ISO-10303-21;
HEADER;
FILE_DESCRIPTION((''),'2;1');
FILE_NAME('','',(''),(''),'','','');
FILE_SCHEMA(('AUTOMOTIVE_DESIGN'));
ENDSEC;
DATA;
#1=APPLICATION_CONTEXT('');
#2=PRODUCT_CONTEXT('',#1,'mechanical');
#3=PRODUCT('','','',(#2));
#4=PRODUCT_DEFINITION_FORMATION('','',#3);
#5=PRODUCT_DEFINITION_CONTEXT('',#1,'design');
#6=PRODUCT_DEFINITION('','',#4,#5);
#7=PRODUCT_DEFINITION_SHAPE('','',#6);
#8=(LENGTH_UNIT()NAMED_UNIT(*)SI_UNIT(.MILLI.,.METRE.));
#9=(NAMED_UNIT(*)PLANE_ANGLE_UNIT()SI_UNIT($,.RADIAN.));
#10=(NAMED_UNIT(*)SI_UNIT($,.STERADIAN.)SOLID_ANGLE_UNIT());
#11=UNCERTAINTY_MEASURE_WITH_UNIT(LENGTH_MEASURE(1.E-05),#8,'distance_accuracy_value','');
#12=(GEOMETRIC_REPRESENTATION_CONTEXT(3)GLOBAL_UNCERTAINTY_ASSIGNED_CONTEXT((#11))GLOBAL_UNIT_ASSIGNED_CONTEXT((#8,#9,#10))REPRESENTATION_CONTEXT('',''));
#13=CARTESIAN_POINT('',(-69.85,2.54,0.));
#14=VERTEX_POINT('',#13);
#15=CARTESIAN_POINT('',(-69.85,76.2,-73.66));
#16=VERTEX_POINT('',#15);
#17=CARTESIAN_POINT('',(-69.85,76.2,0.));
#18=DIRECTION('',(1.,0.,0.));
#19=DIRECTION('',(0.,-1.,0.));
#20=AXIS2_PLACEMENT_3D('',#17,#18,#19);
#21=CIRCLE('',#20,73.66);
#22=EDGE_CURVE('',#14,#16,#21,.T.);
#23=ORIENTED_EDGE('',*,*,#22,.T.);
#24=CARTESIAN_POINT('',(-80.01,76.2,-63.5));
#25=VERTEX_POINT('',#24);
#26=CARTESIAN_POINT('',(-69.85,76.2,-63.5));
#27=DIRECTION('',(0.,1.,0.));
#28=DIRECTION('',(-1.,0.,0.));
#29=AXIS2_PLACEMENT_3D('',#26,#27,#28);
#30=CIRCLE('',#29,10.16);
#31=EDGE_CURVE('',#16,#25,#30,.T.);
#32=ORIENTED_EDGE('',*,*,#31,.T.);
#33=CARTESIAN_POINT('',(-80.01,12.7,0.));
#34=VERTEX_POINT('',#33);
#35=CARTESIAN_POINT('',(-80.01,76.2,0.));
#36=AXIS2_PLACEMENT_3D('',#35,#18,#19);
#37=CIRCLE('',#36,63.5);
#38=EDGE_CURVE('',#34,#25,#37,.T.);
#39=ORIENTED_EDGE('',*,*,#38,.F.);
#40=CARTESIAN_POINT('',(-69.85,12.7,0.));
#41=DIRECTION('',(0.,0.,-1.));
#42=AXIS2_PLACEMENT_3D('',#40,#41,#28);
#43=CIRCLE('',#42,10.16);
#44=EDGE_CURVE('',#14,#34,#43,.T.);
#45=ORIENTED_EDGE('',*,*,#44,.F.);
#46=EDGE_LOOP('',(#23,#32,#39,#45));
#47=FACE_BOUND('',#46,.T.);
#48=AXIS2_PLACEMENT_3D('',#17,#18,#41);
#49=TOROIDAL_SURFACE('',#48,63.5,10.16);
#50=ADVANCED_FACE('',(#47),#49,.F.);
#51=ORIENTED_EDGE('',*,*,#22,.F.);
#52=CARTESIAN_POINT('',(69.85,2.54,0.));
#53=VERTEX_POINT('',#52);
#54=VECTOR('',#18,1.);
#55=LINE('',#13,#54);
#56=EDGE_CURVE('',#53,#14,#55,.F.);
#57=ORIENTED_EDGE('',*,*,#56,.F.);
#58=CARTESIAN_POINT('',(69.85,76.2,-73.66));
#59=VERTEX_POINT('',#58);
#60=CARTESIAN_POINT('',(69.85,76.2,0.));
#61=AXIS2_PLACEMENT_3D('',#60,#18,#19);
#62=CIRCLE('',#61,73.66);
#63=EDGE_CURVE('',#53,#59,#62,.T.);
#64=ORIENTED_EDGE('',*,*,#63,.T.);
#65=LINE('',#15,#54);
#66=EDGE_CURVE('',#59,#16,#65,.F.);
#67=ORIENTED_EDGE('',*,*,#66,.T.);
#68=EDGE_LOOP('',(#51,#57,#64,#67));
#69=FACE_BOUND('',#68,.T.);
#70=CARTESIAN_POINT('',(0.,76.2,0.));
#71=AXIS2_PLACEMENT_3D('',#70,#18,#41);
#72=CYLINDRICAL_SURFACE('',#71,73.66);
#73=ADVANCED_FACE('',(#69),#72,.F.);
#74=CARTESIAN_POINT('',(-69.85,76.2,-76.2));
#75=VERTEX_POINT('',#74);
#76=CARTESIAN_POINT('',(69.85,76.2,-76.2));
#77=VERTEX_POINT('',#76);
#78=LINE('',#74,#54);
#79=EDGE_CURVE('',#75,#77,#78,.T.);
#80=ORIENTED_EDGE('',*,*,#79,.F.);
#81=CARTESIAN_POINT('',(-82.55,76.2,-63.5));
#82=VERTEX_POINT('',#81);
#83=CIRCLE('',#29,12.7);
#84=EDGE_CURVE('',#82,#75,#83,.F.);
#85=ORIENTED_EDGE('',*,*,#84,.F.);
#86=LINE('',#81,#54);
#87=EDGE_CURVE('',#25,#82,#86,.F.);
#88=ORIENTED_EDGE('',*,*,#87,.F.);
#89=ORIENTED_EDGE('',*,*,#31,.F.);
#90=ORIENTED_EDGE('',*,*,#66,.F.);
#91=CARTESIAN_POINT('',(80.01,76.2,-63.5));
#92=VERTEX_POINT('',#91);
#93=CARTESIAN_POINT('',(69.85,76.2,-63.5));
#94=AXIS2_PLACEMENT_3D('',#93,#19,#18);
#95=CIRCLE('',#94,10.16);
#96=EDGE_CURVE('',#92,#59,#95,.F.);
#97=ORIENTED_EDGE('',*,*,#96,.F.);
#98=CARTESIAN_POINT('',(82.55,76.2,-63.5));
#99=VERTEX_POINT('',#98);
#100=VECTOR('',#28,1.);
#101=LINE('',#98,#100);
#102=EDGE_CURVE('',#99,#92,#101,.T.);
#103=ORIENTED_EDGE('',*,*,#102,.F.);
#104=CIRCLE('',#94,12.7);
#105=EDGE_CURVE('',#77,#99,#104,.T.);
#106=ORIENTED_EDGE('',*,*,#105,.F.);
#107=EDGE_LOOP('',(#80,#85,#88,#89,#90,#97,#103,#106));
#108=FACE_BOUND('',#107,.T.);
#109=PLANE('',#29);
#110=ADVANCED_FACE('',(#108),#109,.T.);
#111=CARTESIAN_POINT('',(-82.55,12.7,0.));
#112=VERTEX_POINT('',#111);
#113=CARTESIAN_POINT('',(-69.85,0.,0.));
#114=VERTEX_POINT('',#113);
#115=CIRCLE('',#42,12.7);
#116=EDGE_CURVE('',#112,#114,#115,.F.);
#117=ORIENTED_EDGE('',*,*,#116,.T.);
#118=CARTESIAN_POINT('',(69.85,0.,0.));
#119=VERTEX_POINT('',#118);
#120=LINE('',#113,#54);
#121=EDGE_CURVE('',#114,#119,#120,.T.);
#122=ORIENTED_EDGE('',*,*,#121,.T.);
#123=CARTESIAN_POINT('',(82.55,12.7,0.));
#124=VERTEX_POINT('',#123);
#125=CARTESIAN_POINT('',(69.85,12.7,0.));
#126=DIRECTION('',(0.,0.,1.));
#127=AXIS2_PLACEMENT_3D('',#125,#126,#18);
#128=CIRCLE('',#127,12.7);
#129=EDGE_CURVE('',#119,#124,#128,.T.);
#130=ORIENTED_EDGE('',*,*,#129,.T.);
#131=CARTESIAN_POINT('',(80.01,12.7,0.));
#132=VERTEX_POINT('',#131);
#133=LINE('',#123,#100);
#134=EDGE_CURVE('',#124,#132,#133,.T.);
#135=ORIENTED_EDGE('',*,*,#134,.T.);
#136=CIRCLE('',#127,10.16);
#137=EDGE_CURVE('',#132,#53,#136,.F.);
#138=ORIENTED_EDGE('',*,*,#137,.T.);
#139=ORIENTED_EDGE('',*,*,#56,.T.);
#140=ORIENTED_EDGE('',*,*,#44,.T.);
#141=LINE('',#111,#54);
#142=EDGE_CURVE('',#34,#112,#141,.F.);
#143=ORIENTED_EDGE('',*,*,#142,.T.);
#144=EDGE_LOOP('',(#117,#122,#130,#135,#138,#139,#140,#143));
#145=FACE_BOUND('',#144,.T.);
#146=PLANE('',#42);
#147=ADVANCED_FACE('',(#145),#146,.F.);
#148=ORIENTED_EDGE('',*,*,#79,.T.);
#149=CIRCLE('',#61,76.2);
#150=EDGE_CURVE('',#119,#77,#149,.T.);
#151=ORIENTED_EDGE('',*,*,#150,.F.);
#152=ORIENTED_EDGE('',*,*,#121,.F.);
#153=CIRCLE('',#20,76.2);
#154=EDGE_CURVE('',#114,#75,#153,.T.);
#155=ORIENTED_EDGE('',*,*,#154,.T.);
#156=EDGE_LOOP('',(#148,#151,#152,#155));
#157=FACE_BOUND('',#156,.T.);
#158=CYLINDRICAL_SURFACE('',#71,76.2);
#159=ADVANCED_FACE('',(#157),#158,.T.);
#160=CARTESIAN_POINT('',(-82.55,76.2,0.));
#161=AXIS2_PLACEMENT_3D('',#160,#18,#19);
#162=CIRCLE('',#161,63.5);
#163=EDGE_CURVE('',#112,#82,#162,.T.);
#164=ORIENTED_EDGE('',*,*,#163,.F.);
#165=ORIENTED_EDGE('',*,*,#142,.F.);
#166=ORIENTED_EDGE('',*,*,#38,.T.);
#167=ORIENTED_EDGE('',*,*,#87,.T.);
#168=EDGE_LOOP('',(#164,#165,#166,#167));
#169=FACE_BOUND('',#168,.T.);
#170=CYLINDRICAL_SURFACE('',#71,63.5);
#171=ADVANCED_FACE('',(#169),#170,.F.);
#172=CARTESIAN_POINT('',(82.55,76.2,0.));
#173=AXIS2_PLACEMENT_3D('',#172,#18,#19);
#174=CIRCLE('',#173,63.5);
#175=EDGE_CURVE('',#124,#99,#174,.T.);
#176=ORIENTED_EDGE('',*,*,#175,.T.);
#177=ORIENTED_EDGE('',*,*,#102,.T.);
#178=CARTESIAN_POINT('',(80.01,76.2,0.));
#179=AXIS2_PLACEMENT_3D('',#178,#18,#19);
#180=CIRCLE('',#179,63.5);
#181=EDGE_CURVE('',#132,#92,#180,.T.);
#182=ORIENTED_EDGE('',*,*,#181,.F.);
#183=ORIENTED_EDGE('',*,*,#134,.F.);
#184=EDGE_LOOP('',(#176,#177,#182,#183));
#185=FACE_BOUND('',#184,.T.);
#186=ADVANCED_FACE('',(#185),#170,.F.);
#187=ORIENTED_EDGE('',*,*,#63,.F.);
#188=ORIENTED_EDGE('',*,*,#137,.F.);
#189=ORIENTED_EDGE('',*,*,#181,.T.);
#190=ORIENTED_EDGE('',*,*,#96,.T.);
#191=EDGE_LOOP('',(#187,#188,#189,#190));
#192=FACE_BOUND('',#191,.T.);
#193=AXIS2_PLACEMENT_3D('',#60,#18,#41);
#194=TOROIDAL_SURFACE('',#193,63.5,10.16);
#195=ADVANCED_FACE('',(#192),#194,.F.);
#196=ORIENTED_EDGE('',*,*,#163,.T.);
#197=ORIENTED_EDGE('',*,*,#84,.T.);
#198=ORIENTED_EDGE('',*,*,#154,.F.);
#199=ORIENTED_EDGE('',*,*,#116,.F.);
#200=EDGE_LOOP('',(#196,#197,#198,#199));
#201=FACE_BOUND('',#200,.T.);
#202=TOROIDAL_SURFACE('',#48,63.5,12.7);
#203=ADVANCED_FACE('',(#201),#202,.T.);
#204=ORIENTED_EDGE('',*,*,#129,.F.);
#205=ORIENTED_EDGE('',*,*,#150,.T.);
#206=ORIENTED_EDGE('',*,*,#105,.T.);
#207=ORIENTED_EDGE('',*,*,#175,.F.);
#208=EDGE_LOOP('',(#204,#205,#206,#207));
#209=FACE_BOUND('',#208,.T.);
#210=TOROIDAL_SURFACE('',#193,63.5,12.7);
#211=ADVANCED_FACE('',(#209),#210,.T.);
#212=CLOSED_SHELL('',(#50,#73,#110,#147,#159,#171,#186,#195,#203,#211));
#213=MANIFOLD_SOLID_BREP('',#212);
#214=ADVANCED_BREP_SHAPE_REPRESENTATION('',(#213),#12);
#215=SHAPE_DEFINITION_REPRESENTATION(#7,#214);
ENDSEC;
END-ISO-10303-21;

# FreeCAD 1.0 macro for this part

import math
import FreeCAD as App
import Part
import Sketcher
from FreeCAD import Vector
Q = App.Units.Quantity

doc = App.newDocument("Part")
body = doc.addObject("PartDesign::Body", "Body")

# Sketch on XY plane
sketch1 = body.newObject("Sketcher::SketchObject", "Sketch")
sketch1.AttachmentSupport = (doc.getObject("XY_Plane"), [""])
sketch1.MapMode = "FlatFace"
sketch1.addGeometry([
    Part.LineSegment(Vector(-69.8, 0, 0), Vector(69.8, 0, 0)),  # 0
    Part.ArcOfCircle(Part.Circle(Vector(69.8, 12.7, 0), Vector(0, 0, 1), 12.7), math.radians(-90), math.radians(0)),  # 1
    Part.LineSegment(Vector(82.5, 12.7, 0), Vector(80, 12.7, 0)),  # 2
    Part.ArcOfCircle(Part.Circle(Vector(69.8, 12.7, 0), Vector(0, 0, 1), 10.2), math.radians(-90), math.radians(0)),  # 3
    Part.LineSegment(Vector(69.8, 2.5, 0), Vector(-69.8, 2.5, 0)),  # 4
    Part.ArcOfCircle(Part.Circle(Vector(-69.8, 12.7, 0), Vector(0, 0, 1), 10.2), math.radians(180), math.radians(270)),  # 5
    Part.LineSegment(Vector(-80, 12.7, 0), Vector(-82.5, 12.7, 0)),  # 6
    Part.ArcOfCircle(Part.Circle(Vector(-69.8, 12.7, 0), Vector(0, 0, 1), 12.7), math.radians(180), math.radians(270)),  # 7
], False)
sketch1.addConstraint([
    Sketcher.Constraint("Tangent", 0, 2, 1, 1),
    Sketcher.Constraint("Coincident", 1, 2, 2, 1),
    Sketcher.Constraint("Coincident", 2, 2, 3, 2),
    Sketcher.Constraint("Tangent", 3, 1, 4, 1),
    Sketcher.Constraint("Tangent", 4, 2, 5, 2),
    Sketcher.Constraint("Coincident", 5, 1, 6, 1),
    Sketcher.Constraint("Coincident", 6, 2, 7, 1),
    Sketcher.Constraint("Tangent", 7, 2, 0, 1),
    Sketcher.Constraint("Horizontal", 0),
    Sketcher.Constraint("Horizontal", 2),
    Sketcher.Constraint("Horizontal", 4),
    Sketcher.Constraint("Horizontal", 6),
    Sketcher.Constraint("Coincident", 3, 3, 1, 3),
    Sketcher.Constraint("Coincident", 7, 3, 5, 3),
    Sketcher.Constraint("Equal", 3, 5),
    Sketcher.Constraint("Symmetric", 0, 2, 7, 2, -1, 1),
    Sketcher.Constraint("Horizontal", 7, 3, 1, 2),
    Sketcher.Constraint("Horizontal", 2, 2, 5, 1),
    Sketcher.Constraint("Radius", 1, Q("0.5 in")),
    Sketcher.Constraint("Radius", 3, Q("0.4 in")),
    Sketcher.Constraint("DistanceX", 0, 1, 0, 2, Q("5.5 in")),
])

# Sketch on YZ plane
sketch2 = body.newObject("Sketcher::SketchObject", "Sketch001")
sketch2.AttachmentSupport = (doc.getObject("YZ_Plane"), [""])
sketch2.MapMode = "FlatFace"
sketch2.addGeometry(Part.ArcOfCircle(Part.Circle(Vector(76, 0, 0), Vector(0, 0, 1), 76), math.radians(-180), math.radians(-90)), False)
sketch2.addConstraint([
    Sketcher.Constraint("Coincident", 0, 1, -1, 1),
    Sketcher.Constraint("PointOnObject", 0, 3, -1),
    Sketcher.Constraint("Radius", 0, Q("3 in")),
    Sketcher.Constraint("DistanceX", -1, 1, 0, 2, Q("3 in")),
])
doc.recompute()

additivepipe = body.newObject("PartDesign::AdditivePipe", "AdditivePipe")
additivepipe.Profile = sketch1
additivepipe.Spine = (sketch2, ["Edge1"])

doc.recompute()
